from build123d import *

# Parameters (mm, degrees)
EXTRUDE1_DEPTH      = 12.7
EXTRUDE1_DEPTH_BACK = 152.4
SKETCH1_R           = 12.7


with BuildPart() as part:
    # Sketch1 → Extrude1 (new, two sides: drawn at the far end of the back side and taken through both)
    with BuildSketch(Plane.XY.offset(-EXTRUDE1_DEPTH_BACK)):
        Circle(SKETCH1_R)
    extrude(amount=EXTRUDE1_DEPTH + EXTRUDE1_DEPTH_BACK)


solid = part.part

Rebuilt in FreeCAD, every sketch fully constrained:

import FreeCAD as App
import Part
import Sketcher

V = App.Vector
Q = App.Units.Quantity

doc = App.newDocument("Part")
body = doc.addObject("PartDesign::Body", "Body")

# Sketch on XY plane
sketch1 = body.newObject("Sketcher::SketchObject", "Sketch")
sketch1.AttachmentSupport = (doc.getObject("XY_Plane"), [""])
sketch1.MapMode = "FlatFace"
sketch1.addGeometry(Part.Circle(V(0, 0, 0), V(0, 0, 1), 13), False)
sketch1.addConstraint([
    Sketcher.Constraint("Coincident", 0, 3, -1, 1),
    Sketcher.Constraint("Diameter", 0, Q("1 in")),
])
pad1 = body.newObject("PartDesign::Pad", "Pad")
pad1.Profile = sketch1
pad1.Type = "TwoLengths"
pad1.Length = Q("0.5 in")
pad1.Length2 = Q("6 in")

doc.recompute()
